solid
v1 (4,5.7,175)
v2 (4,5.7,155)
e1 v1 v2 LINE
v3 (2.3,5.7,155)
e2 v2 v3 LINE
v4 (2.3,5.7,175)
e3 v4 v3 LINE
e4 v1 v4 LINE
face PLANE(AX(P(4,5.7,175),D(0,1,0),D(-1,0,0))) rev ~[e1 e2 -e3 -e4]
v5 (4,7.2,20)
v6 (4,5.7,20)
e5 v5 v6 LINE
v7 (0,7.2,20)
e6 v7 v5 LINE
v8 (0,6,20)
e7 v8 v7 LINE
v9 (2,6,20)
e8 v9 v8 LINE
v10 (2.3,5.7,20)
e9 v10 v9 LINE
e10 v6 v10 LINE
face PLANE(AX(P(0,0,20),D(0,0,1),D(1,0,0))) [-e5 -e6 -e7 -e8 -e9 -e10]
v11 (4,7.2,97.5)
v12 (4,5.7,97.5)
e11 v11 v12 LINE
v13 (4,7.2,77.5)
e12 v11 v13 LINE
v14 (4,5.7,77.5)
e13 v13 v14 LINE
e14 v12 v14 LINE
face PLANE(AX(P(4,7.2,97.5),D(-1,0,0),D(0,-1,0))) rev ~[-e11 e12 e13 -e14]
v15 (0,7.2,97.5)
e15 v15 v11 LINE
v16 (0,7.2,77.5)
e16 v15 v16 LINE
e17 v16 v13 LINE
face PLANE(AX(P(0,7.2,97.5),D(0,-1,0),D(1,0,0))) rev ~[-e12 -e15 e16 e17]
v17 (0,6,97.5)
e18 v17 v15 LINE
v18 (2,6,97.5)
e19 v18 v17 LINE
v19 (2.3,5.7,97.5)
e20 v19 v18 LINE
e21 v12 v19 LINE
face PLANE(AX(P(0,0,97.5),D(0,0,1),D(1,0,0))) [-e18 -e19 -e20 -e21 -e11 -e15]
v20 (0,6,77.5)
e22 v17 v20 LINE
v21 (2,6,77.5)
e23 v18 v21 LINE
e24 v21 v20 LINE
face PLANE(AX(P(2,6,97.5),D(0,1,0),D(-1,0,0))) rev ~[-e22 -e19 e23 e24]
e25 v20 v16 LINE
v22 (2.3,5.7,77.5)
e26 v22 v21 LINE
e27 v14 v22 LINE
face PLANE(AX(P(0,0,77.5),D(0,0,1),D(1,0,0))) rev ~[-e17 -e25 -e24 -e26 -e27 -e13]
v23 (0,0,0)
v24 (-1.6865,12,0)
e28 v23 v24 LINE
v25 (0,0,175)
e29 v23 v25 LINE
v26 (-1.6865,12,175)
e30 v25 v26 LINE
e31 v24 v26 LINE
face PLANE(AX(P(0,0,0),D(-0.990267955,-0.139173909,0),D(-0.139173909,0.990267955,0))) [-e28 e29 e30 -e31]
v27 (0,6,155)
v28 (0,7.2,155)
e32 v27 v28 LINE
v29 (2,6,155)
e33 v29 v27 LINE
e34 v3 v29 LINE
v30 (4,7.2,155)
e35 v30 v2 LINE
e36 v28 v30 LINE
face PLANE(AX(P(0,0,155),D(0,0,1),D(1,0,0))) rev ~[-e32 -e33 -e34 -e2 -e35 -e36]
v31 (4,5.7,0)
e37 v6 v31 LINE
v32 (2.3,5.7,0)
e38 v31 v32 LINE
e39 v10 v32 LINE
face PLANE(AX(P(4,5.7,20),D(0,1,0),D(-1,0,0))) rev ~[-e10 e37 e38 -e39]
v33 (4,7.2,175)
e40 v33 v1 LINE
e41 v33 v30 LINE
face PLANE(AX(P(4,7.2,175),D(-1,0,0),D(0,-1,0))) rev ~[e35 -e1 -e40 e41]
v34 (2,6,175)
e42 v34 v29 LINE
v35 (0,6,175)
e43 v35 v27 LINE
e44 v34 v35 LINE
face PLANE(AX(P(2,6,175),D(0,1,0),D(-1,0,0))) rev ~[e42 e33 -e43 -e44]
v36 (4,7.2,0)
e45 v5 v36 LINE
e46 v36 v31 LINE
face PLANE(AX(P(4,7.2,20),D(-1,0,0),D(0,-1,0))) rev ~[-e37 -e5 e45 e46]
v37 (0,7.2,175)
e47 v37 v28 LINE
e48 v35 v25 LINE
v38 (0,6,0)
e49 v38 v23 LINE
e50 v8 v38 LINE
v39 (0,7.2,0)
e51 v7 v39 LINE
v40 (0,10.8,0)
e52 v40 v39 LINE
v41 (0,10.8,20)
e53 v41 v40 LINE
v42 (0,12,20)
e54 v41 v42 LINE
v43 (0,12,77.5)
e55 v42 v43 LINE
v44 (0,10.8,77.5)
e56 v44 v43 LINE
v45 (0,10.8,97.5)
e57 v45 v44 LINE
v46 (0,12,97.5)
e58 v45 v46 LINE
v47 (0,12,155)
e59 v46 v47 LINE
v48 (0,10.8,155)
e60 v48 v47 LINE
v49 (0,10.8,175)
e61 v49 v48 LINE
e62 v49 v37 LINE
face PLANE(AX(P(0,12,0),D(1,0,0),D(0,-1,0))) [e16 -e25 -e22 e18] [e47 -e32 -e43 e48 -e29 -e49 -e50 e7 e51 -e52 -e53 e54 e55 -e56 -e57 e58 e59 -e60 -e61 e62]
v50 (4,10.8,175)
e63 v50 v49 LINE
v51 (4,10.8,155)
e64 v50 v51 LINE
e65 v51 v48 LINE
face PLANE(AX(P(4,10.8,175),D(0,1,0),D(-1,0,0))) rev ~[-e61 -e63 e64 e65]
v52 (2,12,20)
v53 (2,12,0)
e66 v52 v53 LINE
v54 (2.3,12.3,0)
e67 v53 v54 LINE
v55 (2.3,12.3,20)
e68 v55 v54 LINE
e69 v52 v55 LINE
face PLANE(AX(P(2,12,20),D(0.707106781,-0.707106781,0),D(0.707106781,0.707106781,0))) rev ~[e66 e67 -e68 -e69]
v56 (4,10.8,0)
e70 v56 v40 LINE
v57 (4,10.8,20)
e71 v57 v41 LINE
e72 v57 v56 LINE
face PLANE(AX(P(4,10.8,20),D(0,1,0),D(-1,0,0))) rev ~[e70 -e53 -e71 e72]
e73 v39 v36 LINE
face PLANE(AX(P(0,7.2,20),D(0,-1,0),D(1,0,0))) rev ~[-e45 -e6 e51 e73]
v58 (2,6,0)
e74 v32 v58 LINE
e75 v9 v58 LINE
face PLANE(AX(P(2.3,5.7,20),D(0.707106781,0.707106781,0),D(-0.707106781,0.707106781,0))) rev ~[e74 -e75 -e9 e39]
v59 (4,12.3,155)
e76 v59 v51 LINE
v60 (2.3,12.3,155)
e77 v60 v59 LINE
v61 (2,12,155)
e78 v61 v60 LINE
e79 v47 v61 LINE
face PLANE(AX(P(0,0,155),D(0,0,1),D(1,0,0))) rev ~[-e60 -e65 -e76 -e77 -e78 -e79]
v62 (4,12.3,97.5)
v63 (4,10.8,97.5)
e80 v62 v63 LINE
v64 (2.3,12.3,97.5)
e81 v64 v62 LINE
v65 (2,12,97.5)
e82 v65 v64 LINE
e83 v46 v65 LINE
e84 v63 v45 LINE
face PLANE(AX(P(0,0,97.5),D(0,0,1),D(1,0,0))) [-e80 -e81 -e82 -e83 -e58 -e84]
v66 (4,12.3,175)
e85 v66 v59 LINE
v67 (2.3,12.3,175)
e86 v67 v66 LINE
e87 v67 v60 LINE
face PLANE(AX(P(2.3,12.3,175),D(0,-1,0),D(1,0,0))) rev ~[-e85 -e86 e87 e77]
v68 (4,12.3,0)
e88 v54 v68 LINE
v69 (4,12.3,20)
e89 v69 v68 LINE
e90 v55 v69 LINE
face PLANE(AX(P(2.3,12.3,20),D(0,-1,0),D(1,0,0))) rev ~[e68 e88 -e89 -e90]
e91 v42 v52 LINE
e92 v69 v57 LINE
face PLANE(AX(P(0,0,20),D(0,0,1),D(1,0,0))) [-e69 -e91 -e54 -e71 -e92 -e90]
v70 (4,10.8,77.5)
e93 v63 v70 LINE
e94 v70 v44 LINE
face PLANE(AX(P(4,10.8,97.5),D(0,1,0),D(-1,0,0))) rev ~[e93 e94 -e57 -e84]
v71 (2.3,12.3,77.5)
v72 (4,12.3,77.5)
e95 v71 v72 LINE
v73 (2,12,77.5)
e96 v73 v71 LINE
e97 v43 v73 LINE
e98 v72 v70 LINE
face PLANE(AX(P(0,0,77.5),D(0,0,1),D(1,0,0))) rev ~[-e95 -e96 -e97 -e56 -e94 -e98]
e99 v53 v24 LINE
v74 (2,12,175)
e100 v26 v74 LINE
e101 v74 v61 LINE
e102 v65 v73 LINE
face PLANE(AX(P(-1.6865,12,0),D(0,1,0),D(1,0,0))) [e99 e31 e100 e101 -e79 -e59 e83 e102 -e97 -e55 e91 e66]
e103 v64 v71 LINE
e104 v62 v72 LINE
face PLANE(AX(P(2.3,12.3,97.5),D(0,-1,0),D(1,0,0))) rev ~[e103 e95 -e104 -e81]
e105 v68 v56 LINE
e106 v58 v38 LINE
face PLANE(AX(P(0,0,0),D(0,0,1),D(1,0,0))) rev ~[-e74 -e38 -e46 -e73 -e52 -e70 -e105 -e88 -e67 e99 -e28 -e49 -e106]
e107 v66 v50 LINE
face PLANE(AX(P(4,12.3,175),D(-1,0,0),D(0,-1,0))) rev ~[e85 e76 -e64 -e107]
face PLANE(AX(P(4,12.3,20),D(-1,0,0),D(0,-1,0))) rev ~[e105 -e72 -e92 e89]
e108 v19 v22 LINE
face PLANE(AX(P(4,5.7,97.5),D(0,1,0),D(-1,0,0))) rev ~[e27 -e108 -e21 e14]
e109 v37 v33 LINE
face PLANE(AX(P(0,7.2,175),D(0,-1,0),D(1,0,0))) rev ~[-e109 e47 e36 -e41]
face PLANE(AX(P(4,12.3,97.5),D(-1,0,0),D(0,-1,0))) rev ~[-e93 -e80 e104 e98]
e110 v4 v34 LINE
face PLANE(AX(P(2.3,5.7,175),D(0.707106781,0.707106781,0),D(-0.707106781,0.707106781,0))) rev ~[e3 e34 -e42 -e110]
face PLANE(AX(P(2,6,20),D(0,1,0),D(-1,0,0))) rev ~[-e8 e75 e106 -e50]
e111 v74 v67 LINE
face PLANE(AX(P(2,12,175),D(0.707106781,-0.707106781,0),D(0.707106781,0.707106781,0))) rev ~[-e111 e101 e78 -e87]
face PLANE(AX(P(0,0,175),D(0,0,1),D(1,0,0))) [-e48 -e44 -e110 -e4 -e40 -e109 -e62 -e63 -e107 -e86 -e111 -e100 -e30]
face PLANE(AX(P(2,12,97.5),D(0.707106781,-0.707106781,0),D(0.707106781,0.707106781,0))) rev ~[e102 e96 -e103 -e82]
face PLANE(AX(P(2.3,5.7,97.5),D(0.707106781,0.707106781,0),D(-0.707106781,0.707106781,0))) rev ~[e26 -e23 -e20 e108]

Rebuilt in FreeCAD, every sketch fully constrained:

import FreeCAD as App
import Part
import Sketcher
Q = App.Units.Quantity


def add_polygon(sketch, points):
    """Adds a closed chain of lines whose ends are joined by coincident constraints."""
    first, n = sketch.GeometryCount, len(points)
    for a, b in zip(points, points[1:] + points[:1]):
        sketch.addGeometry(Part.LineSegment(App.Vector(*a, 0), App.Vector(*b, 0)), False)
    for i in range(n):
        sketch.addConstraint(Sketcher.Constraint("Coincident", first + i, 2, first + (i + 1) % n, 1))

doc = App.newDocument("Part")
body = doc.addObject("PartDesign::Body", "Body")

# Sketch on XY plane
sketch1 = body.newObject("Sketcher::SketchObject", "Sketch")
sketch1.AttachmentSupport = (doc.getObject("XY_Plane"), [""])
sketch1.MapMode = "FlatFace"
add_polygon(sketch1, [(-1.7, 12), (0, 0), (0, 12)])  # lines 0-2
sketch1.addConstraint([
    Sketcher.Constraint("Vertical", 1),
    Sketcher.Constraint("Horizontal", 2),
    Sketcher.Constraint("Coincident", 0, 2, -1, 1),
    Sketcher.Constraint("DistanceY", 1, 1, 1, 2, 12.0),
    Sketcher.Constraint("Angle", 0, Q("-82 deg")),
])
pad1 = body.newObject("PartDesign::Pad", "Pad")
pad1.Profile = sketch1
pad1.Length = 175

# Sketch on XY plane
sketch2 = body.newObject("Sketcher::SketchObject", "Sketch001")
sketch2.AttachmentSupport = (doc.getObject("XY_Plane"), [""])
sketch2.MapMode = "FlatFace"
sketch2.AttachmentOffset = App.Placement(App.Vector(0, 0, 175), App.Rotation())
add_polygon(sketch2, [(0, 12), (0, 10.8), (4, 10.8), (4, 12.3), (2.3, 12.3), (2, 12)])  # lines 0-5
add_polygon(sketch2, [(0, 7.2), (0, 6), (2, 6), (2.3, 5.7), (4, 5.7), (4, 7.2)])  # lines 6-11
sketch2.addConstraint([
    Sketcher.Constraint("Vertical", 0),
    Sketcher.Constraint("Horizontal", 1),
    Sketcher.Constraint("Vertical", 2),
    Sketcher.Constraint("Horizontal", 3),
    Sketcher.Constraint("Horizontal", 5),
    Sketcher.Constraint("Vertical", 6),
    Sketcher.Constraint("Horizontal", 7),
    Sketcher.Constraint("Horizontal", 9),
    Sketcher.Constraint("Vertical", 10),
    Sketcher.Constraint("Horizontal", 11),
    Sketcher.Constraint("PointOnObject", 0, 2, -2),
    Sketcher.Constraint("PointOnObject", 6, 2, -2),
    Sketcher.Constraint("Perpendicular", 4, 8),
    Sketcher.Constraint("Vertical", 4, 2, 7, 2),
    Sketcher.Constraint("Vertical", 3, 2, 8, 2),
    Sketcher.Constraint("Vertical", 2, 2, 9, 2),
    Sketcher.Constraint("Equal", 0, 6),
    Sketcher.Constraint("Equal", 2, 10),
    Sketcher.Constraint("DistanceX", 1, 1, 1, 2, 4.0),
    Sketcher.Constraint("DistanceX", 5, 2, 5, 1, 2.0),
    Sketcher.Constraint("DistanceY", 0, 2, 0, 1, 1.2),
    Sketcher.Constraint("DistanceY", -1, 1, 6, 2, 6.0),
    Sketcher.Constraint("DistanceY", 6, 2, 5, 2, 6.0),
    Sketcher.Constraint("DistanceX", 3, 2, 3, 1, 1.7),
])
pad2 = body.newObject("PartDesign::Pad", "Pad001")
pad2.Profile = sketch2
pad2.Length = 20
pad2.Reversed = True
doc.recompute()

linearpattern = body.newObject("PartDesign::LinearPattern", "LinearPattern")
linearpattern.Originals = [pad2]
linearpattern.Direction = (doc.getObject("Z_Axis"), [""])
linearpattern.Mode = "offset"
linearpattern.Offset = 77.5
linearpattern.Occurrences = 3
linearpattern.Reversed = True
body.Tip = linearpattern

doc.recompute()
